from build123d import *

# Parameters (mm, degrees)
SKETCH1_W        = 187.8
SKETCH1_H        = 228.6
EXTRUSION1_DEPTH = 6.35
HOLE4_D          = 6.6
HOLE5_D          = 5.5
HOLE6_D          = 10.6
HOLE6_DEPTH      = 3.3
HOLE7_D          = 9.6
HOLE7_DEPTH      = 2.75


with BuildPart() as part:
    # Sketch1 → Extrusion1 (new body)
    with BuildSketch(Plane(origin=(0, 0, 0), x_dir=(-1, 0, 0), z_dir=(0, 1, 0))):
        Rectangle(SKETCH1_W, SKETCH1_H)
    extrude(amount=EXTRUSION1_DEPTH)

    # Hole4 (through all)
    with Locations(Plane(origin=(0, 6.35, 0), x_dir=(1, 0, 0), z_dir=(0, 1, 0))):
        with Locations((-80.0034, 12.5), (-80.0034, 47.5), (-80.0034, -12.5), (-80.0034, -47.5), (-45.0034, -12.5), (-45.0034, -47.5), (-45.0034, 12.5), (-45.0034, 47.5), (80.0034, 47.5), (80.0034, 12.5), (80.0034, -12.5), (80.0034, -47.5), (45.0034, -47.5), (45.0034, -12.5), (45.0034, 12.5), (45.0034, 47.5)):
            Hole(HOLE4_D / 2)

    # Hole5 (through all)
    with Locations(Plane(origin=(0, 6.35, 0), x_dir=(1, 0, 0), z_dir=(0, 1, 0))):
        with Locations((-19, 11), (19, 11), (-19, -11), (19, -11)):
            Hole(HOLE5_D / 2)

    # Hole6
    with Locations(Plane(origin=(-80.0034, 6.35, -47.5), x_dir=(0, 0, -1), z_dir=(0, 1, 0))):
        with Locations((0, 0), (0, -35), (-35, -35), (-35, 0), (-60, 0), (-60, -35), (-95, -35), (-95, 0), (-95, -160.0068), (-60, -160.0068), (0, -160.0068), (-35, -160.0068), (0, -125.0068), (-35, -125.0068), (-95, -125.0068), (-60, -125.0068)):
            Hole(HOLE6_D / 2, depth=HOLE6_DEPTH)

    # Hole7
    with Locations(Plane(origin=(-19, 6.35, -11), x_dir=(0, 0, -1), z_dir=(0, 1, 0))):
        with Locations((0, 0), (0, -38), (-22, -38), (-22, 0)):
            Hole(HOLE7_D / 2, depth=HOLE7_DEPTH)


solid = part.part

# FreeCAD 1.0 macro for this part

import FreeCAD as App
import Part
import Sketcher


def add_polygon(sketch, points):
    """Adds a closed chain of lines whose ends are joined by coincident constraints."""
    first, n = sketch.GeometryCount, len(points)
    for a, b in zip(points, points[1:] + points[:1]):
        sketch.addGeometry(Part.LineSegment(App.Vector(*a, 0), App.Vector(*b, 0)), False)
    for i in range(n):
        sketch.addConstraint(Sketcher.Constraint("Coincident", first + i, 2, first + (i + 1) % n, 1))

doc = App.newDocument("Part")
body = doc.addObject("PartDesign::Body", "Body")

# Sketch on XZ plane
sketch1 = body.newObject("Sketcher::SketchObject", "Sketch")
sketch1.AttachmentSupport = (doc.getObject("XZ_Plane"), [""])
sketch1.MapMode = "FlatFace"
add_polygon(sketch1, [(94, 114), (94, -114), (-94, -114), (-94, 114)])  # lines 0-3
sketch1.addConstraint([
    Sketcher.Constraint("Vertical", 0),
    Sketcher.Constraint("Horizontal", 1),
    Sketcher.Constraint("Vertical", 2),
    Sketcher.Constraint("Horizontal", 3),
    Sketcher.Constraint("Symmetric", 0, 2, 2, 2, -1, 1),
    Sketcher.Constraint("DistanceX", 1, 2, 1, 1, 187.8),
    Sketcher.Constraint("DistanceY", 0, 2, 0, 1, 228.6),
])
pad1 = body.newObject("PartDesign::Pad", "Pad")
pad1.Profile = sketch1
pad1.Length = 6.35
pad1.Reversed = True

# Sketch on XZ plane
sketch2 = body.newObject("Sketcher::SketchObject", "Sketch001")
sketch2.AttachmentSupport = (doc.getObject("XZ_Plane"), [""])
sketch2.MapMode = "FlatFace"
sketch2.AttachmentOffset = App.Placement(App.Vector(0, 0, -6.35), App.Rotation())
sketch2.addGeometry([
    Part.Circle(App.Vector(-80, -12.5, 0), App.Vector(0, 0, 1), 3.3),  # 0
    Part.Circle(App.Vector(-80, -47.5, 0), App.Vector(0, 0, 1), 3.3),  # 1
    Part.Circle(App.Vector(-80, 12.5, 0), App.Vector(0, 0, 1), 3.3),  # 2
    Part.Circle(App.Vector(-80, 47.5, 0), App.Vector(0, 0, 1), 3.3),  # 3
    Part.Circle(App.Vector(-45, 12.5, 0), App.Vector(0, 0, 1), 3.3),  # 4
    Part.Circle(App.Vector(-45, 47.5, 0), App.Vector(0, 0, 1), 3.3),  # 5
    Part.Circle(App.Vector(-45, -12.5, 0), App.Vector(0, 0, 1), 3.3),  # 6
    Part.Circle(App.Vector(-45, -47.5, 0), App.Vector(0, 0, 1), 3.3),  # 7
    Part.Circle(App.Vector(80, -47.5, 0), App.Vector(0, 0, 1), 3.3),  # 8
    Part.Circle(App.Vector(80, -12.5, 0), App.Vector(0, 0, 1), 3.3),  # 9
    Part.Circle(App.Vector(80, 12.5, 0), App.Vector(0, 0, 1), 3.3),  # 10
    Part.Circle(App.Vector(80, 47.5, 0), App.Vector(0, 0, 1), 3.3),  # 11
    Part.Circle(App.Vector(45, 47.5, 0), App.Vector(0, 0, 1), 3.3),  # 12
    Part.Circle(App.Vector(45, 12.5, 0), App.Vector(0, 0, 1), 3.3),  # 13
    Part.Circle(App.Vector(45, -12.5, 0), App.Vector(0, 0, 1), 3.3),  # 14
    Part.Circle(App.Vector(45, -47.5, 0), App.Vector(0, 0, 1), 3.3),  # 15
], False)
sketch2.addConstraint([
    Sketcher.Constraint("Equal", 0, 1),
    Sketcher.Constraint("Equal", 1, 2),
    Sketcher.Constraint("Equal", 2, 3),
    Sketcher.Constraint("Equal", 3, 4),
    Sketcher.Constraint("Equal", 4, 5),
    Sketcher.Constraint("Equal", 5, 6),
    Sketcher.Constraint("Equal", 6, 7),
    Sketcher.Constraint("Equal", 7, 8),
    Sketcher.Constraint("Equal", 8, 9),
    Sketcher.Constraint("Equal", 9, 10),
    Sketcher.Constraint("Equal", 10, 11),
    Sketcher.Constraint("Equal", 11, 12),
    Sketcher.Constraint("Equal", 12, 13),
    Sketcher.Constraint("Equal", 13, 14),
    Sketcher.Constraint("Equal", 14, 15),
    Sketcher.Constraint("Symmetric", 3, 3, 8, 3, -1, 1),
    Sketcher.Constraint("Symmetric", 2, 3, 9, 3, -1, 1),
    Sketcher.Constraint("Symmetric", 0, 3, 10, 3, -1, 1),
    Sketcher.Constraint("Symmetric", 1, 3, 11, 3, -1, 1),
    Sketcher.Constraint("Symmetric", 7, 3, 12, 3, -1, 1),
    Sketcher.Constraint("Symmetric", 6, 3, 13, 3, -1, 1),
    Sketcher.Constraint("Symmetric", 4, 3, 14, 3, -1, 1),
    Sketcher.Constraint("Symmetric", 5, 3, 15, 3, -1, 1),
    Sketcher.Constraint("Symmetric", 1, 3, 8, 3, -2),
    Sketcher.Constraint("Symmetric", 0, 3, 9, 3, -2),
    Sketcher.Constraint("Symmetric", 5, 3, 12, 3, -2),
    Sketcher.Constraint("Symmetric", 4, 3, 13, 3, -2),
    Sketcher.Constraint("Horizontal", 2, 3, 4, 3),
    Sketcher.Constraint("Horizontal", 3, 3, 5, 3),
    Sketcher.Constraint("Vertical", 0, 3, 1, 3),
    Sketcher.Constraint("Vertical", 4, 3, 5, 3),
    Sketcher.Constraint("Diameter", 0, 6.6),
    Sketcher.Constraint("DistanceY", 1, 3, 0, 3, 35.0),
    Sketcher.Constraint("DistanceY", 0, 3, 2, 3, 25.0),
    Sketcher.Constraint("DistanceX", 2, 3, 4, 3, 35.0),
    Sketcher.Constraint("DistanceX", 0, 3, -1, 1, 80.0034),
])
doc.recompute()
hole = body.newObject("PartDesign::Hole", "Hole")
hole.Profile = sketch2
hole.ThreadType = "None"
hole.Diameter = 6.6
hole.DepthType = "ThroughAll"
hole.Reversed = True

# Sketch on XZ plane
sketch3 = body.newObject("Sketcher::SketchObject", "Sketch002")
sketch3.AttachmentSupport = (doc.getObject("XZ_Plane"), [""])
sketch3.MapMode = "FlatFace"
sketch3.AttachmentOffset = App.Placement(App.Vector(0, 0, -6.35), App.Rotation())
sketch3.addGeometry([
    Part.Circle(App.Vector(-19, -11, 0), App.Vector(0, 0, 1), 2.8),
    Part.Circle(App.Vector(19, -11, 0), App.Vector(0, 0, 1), 2.8),
    Part.Circle(App.Vector(-19, 11, 0), App.Vector(0, 0, 1), 2.8),
    Part.Circle(App.Vector(19, 11, 0), App.Vector(0, 0, 1), 2.8),
], False)
sketch3.addConstraint([
    Sketcher.Constraint("Equal", 0, 1),
    Sketcher.Constraint("Equal", 1, 2),
    Sketcher.Constraint("Equal", 2, 3),
    Sketcher.Constraint("Symmetric", 1, 3, 2, 3, -1, 1),
    Sketcher.Constraint("Symmetric", 0, 3, 3, 3, -1, 1),
    Sketcher.Constraint("Symmetric", 0, 3, 1, 3, -2),
    Sketcher.Constraint("Diameter", 0, 5.5),
    Sketcher.Constraint("DistanceX", 0, 3, -1, 1, 19.0),
    Sketcher.Constraint("DistanceY", 0, 3, -1, 1, 11.0),
])
doc.recompute()
hole2 = body.newObject("PartDesign::Hole", "Hole001")
hole2.Profile = sketch3
hole2.ThreadType = "None"
hole2.Diameter = 5.5
hole2.DepthType = "ThroughAll"
hole2.Reversed = True

# Sketch on XZ plane
sketch4 = body.newObject("Sketcher::SketchObject", "Sketch003")
sketch4.AttachmentSupport = (doc.getObject("XZ_Plane"), [""])
sketch4.MapMode = "FlatFace"
sketch4.AttachmentOffset = App.Placement(App.Vector(0, 0, -6.35), App.Rotation())
sketch4.addGeometry([
    Part.Circle(App.Vector(-80, -48, 0), App.Vector(0, 0, 1), 5),  # 0
    Part.Circle(App.Vector(-45, -48, 0), App.Vector(0, 0, 1), 5),  # 1
    Part.Circle(App.Vector(-45, -12, 0), App.Vector(0, 0, 1), 5),  # 2
    Part.Circle(App.Vector(-80, -12, 0), App.Vector(0, 0, 1), 5),  # 3
    Part.Circle(App.Vector(-80, 12, 0), App.Vector(0, 0, 1), 5),  # 4
    Part.Circle(App.Vector(-45, 12, 0), App.Vector(0, 0, 1), 5),  # 5
    Part.Circle(App.Vector(-45, 48, 0), App.Vector(0, 0, 1), 5),  # 6
    Part.Circle(App.Vector(-80, 48, 0), App.Vector(0, 0, 1), 5),  # 7
    Part.Circle(App.Vector(80, 48, 0), App.Vector(0, 0, 1), 5),  # 8
    Part.Circle(App.Vector(80, 12, 0), App.Vector(0, 0, 1), 5),  # 9
    Part.Circle(App.Vector(80, -48, 0), App.Vector(0, 0, 1), 5),  # 10
    Part.Circle(App.Vector(80, -12, 0), App.Vector(0, 0, 1), 5),  # 11
    Part.Circle(App.Vector(45, -48, 0), App.Vector(0, 0, 1), 5),  # 12
    Part.Circle(App.Vector(45, -12, 0), App.Vector(0, 0, 1), 5),  # 13
    Part.Circle(App.Vector(45, 48, 0), App.Vector(0, 0, 1), 5),  # 14
    Part.Circle(App.Vector(45, 12, 0), App.Vector(0, 0, 1), 5),  # 15
], False)
sketch4.addConstraint([
    Sketcher.Constraint("Equal", 0, 1),
    Sketcher.Constraint("Equal", 1, 2),
    Sketcher.Constraint("Equal", 2, 3),
    Sketcher.Constraint("Equal", 3, 4),
    Sketcher.Constraint("Equal", 4, 5),
    Sketcher.Constraint("Equal", 5, 6),
    Sketcher.Constraint("Equal", 6, 7),
    Sketcher.Constraint("Equal", 7, 8),
    Sketcher.Constraint("Equal", 8, 9),
    Sketcher.Constraint("Equal", 9, 10),
    Sketcher.Constraint("Equal", 10, 11),
    Sketcher.Constraint("Equal", 11, 12),
    Sketcher.Constraint("Equal", 12, 13),
    Sketcher.Constraint("Equal", 13, 14),
    Sketcher.Constraint("Equal", 14, 15),
    Sketcher.Constraint("Symmetric", 0, 3, 8, 3, -1, 1),
    Sketcher.Constraint("Symmetric", 3, 3, 9, 3, -1, 1),
    Sketcher.Constraint("Symmetric", 7, 3, 10, 3, -1, 1),
    Sketcher.Constraint("Symmetric", 4, 3, 11, 3, -1, 1),
    Sketcher.Constraint("Symmetric", 6, 3, 12, 3, -1, 1),
    Sketcher.Constraint("Symmetric", 5, 3, 13, 3, -1, 1),
    Sketcher.Constraint("Symmetric", 1, 3, 14, 3, -1, 1),
    Sketcher.Constraint("Symmetric", 2, 3, 15, 3, -1, 1),
    Sketcher.Constraint("Symmetric", 7, 3, 8, 3, -2),
    Sketcher.Constraint("Symmetric", 4, 3, 9, 3, -2),
    Sketcher.Constraint("Symmetric", 1, 3, 12, 3, -2),
    Sketcher.Constraint("Symmetric", 2, 3, 13, 3, -2),
    Sketcher.Constraint("Horizontal", 0, 3, 1, 3),
    Sketcher.Constraint("Horizontal", 2, 3, 3, 3),
    Sketcher.Constraint("Vertical", 1, 3, 2, 3),
    Sketcher.Constraint("Vertical", 0, 3, 3, 3),
    Sketcher.Constraint("Diameter", 0, 10.6),
    Sketcher.Constraint("DistanceX", 0, 3, 1, 3, 35.0),
    Sketcher.Constraint("DistanceY", 1, 3, 2, 3, 35.0),
    Sketcher.Constraint("DistanceY", 3, 3, 4, 3, 25.0),
    Sketcher.Constraint("DistanceX", 0, 3, -1, 1, 80.0034),
])
doc.recompute()
hole3 = body.newObject("PartDesign::Hole", "Hole002")
hole3.Profile = sketch4
hole3.ThreadType = "None"
hole3.Diameter = 10.6
hole3.DepthType = "Dimension"
hole3.Depth = 3.3
hole3.DrillPoint = "Flat"
hole3.Reversed = True

# Sketch on XZ plane
sketch5 = body.newObject("Sketcher::SketchObject", "Sketch004")
sketch5.AttachmentSupport = (doc.getObject("XZ_Plane"), [""])
sketch5.MapMode = "FlatFace"
sketch5.AttachmentOffset = App.Placement(App.Vector(0, 0, -6.35), App.Rotation())
sketch5.addGeometry([
    Part.Circle(App.Vector(-19, -11, 0), App.Vector(0, 0, 1), 4.8),
    Part.Circle(App.Vector(19, -11, 0), App.Vector(0, 0, 1), 4.8),
    Part.Circle(App.Vector(19, 11, 0), App.Vector(0, 0, 1), 4.8),
    Part.Circle(App.Vector(-19, 11, 0), App.Vector(0, 0, 1), 4.8),
], False)
sketch5.addConstraint([
    Sketcher.Constraint("Equal", 0, 1),
    Sketcher.Constraint("Equal", 1, 2),
    Sketcher.Constraint("Equal", 2, 3),
    Sketcher.Constraint("Symmetric", 0, 3, 2, 3, -1, 1),
    Sketcher.Constraint("Symmetric", 1, 3, 3, 3, -1, 1),
    Sketcher.Constraint("Symmetric", 0, 3, 1, 3, -2),
    Sketcher.Constraint("Diameter", 0, 9.6),
    Sketcher.Constraint("DistanceX", 0, 3, -1, 1, 19.0),
    Sketcher.Constraint("DistanceY", 0, 3, -1, 1, 11.0),
])
doc.recompute()
hole4 = body.newObject("PartDesign::Hole", "Hole003")
hole4.Profile = sketch5
hole4.ThreadType = "None"
hole4.Diameter = 9.6
hole4.DepthType = "Dimension"
hole4.Depth = 2.75
hole4.DrillPoint = "Flat"
hole4.Reversed = True

doc.recompute()
